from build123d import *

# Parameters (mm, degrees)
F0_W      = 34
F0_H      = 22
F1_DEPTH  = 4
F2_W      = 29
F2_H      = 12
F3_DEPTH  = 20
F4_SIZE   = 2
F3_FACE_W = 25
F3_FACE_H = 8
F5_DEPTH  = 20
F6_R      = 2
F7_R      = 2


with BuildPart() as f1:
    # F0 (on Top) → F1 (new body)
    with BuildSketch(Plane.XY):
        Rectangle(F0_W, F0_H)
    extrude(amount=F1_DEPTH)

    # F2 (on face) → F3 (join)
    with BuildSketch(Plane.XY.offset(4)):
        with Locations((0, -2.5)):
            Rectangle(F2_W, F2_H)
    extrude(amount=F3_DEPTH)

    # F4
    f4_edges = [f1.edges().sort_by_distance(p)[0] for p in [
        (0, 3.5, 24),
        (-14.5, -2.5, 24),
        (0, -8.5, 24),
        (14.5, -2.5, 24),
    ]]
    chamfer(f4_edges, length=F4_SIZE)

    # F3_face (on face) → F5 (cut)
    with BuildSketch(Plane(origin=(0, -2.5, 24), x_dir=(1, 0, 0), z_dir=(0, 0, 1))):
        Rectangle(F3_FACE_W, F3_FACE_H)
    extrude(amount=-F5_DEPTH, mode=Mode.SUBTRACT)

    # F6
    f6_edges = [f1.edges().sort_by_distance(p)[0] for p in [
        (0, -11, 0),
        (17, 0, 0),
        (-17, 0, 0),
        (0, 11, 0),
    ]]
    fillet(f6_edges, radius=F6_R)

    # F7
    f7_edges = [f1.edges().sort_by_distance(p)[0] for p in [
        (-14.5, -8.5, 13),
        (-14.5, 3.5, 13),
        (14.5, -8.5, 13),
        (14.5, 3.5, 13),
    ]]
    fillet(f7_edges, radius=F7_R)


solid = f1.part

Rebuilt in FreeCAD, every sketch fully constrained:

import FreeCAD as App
import Part
import Sketcher
from FreeCAD import Vector


def edges_at(feature, points):
    """Names of the edges that pass closest to the given points."""
    edges = feature.Shape.Edges
    near = lambda p: min(range(len(edges)), key=lambda i: edges[i].distToShape(Part.Vertex(*p))[0])
    return sorted({f"Edge{near(p) + 1}" for p in points})

doc = App.newDocument("Part")
body = doc.addObject("PartDesign::Body", "Body")

sketch1 = body.newObject("Sketcher::SketchObject", "Sketch")
sketch1.AttachmentSupport = (doc.getObject("XY_Plane"), [""])
sketch1.MapMode = "FlatFace"
sketch1.addGeometry(Part.LineSegment(Vector(-17, 11, 0), Vector(-17, -11, 0)), False)
sketch1.addGeometry(Part.LineSegment(Vector(-17, -11, 0), Vector(17, -11, 0)), False)
sketch1.addGeometry(Part.LineSegment(Vector(17, -11, 0), Vector(17, 11, 0)), False)
sketch1.addGeometry(Part.LineSegment(Vector(17, 11, 0), Vector(-17, 11, 0)), False)
sketch1.addConstraint(Sketcher.Constraint("Coincident", 0, 2, 1, 1))
sketch1.addConstraint(Sketcher.Constraint("Coincident", 1, 2, 2, 1))
sketch1.addConstraint(Sketcher.Constraint("Coincident", 2, 2, 3, 1))
sketch1.addConstraint(Sketcher.Constraint("Coincident", 3, 2, 0, 1))
sketch1.addConstraint(Sketcher.Constraint("Vertical", 0))
sketch1.addConstraint(Sketcher.Constraint("Horizontal", 1))
sketch1.addConstraint(Sketcher.Constraint("Vertical", 2))
sketch1.addConstraint(Sketcher.Constraint("Horizontal", 3))
sketch1.addConstraint(Sketcher.Constraint("Symmetric", 0, 2, 2, 2, -1, 1))
sketch1.addConstraint(Sketcher.Constraint("DistanceX", 1, 1, 1, 2, 34.0))
sketch1.addConstraint(Sketcher.Constraint("DistanceY", 0, 2, 0, 1, 22.0))
pad1 = body.newObject("PartDesign::Pad", "Pad")
pad1.Profile = sketch1
pad1.Length = 4

sketch2 = body.newObject("Sketcher::SketchObject", "Sketch001")
sketch2.AttachmentSupport = (doc.getObject("XY_Plane"), [""])
sketch2.MapMode = "FlatFace"
sketch2.AttachmentOffset = App.Placement(Vector(0, 0, 4), App.Rotation())
sketch2.addGeometry(Part.LineSegment(Vector(-14, 4, 0), Vector(-14, -8, 0)), False)
sketch2.addGeometry(Part.LineSegment(Vector(-14, -8, 0), Vector(14, -8, 0)), False)
sketch2.addGeometry(Part.LineSegment(Vector(14, -8, 0), Vector(14, 4, 0)), False)
sketch2.addGeometry(Part.LineSegment(Vector(14, 4, 0), Vector(-14, 4, 0)), False)
sketch2.addConstraint(Sketcher.Constraint("Coincident", 0, 2, 1, 1))
sketch2.addConstraint(Sketcher.Constraint("Coincident", 1, 2, 2, 1))
sketch2.addConstraint(Sketcher.Constraint("Coincident", 2, 2, 3, 1))
sketch2.addConstraint(Sketcher.Constraint("Coincident", 3, 2, 0, 1))
sketch2.addConstraint(Sketcher.Constraint("Vertical", 0))
sketch2.addConstraint(Sketcher.Constraint("Horizontal", 1))
sketch2.addConstraint(Sketcher.Constraint("Vertical", 2))
sketch2.addConstraint(Sketcher.Constraint("Horizontal", 3))
sketch2.addConstraint(Sketcher.Constraint("DistanceX", 1, 1, 1, 2, 29.0))
sketch2.addConstraint(Sketcher.Constraint("DistanceY", 0, 2, 0, 1, 12.0))
sketch2.addConstraint(Sketcher.Constraint("DistanceX", 0, 2, -1, 1, 14.5))
sketch2.addConstraint(Sketcher.Constraint("DistanceY", 0, 2, -1, 1, 8.5))
pad2 = body.newObject("PartDesign::Pad", "Pad001")
pad2.Profile = sketch2
pad2.Length = 20
doc.recompute()

chamfer = body.newObject("PartDesign::Chamfer", "Chamfer")
chamfer.Base = (pad2, edges_at(pad2, [
    (0, 3.5, 24),
    (-14.5, -2.5, 24),
    (0, -8.5, 24),
    (14.5, -2.5, 24),
]))
chamfer.Size = 2

sketch3 = body.newObject("Sketcher::SketchObject", "Sketch002")
sketch3.AttachmentSupport = (doc.getObject("XY_Plane"), [""])
sketch3.MapMode = "FlatFace"
sketch3.AttachmentOffset = App.Placement(Vector(0, 0, 24), App.Rotation())
sketch3.addGeometry(Part.LineSegment(Vector(-12, 2, 0), Vector(-12, -6, 0)), False)
sketch3.addGeometry(Part.LineSegment(Vector(-12, -6, 0), Vector(12, -6, 0)), False)
sketch3.addGeometry(Part.LineSegment(Vector(12, -6, 0), Vector(12, 2, 0)), False)
sketch3.addGeometry(Part.LineSegment(Vector(12, 2, 0), Vector(-12, 2, 0)), False)
sketch3.addConstraint(Sketcher.Constraint("Coincident", 0, 2, 1, 1))
sketch3.addConstraint(Sketcher.Constraint("Coincident", 1, 2, 2, 1))
sketch3.addConstraint(Sketcher.Constraint("Coincident", 2, 2, 3, 1))
sketch3.addConstraint(Sketcher.Constraint("Coincident", 3, 2, 0, 1))
sketch3.addConstraint(Sketcher.Constraint("Vertical", 0))
sketch3.addConstraint(Sketcher.Constraint("Horizontal", 1))
sketch3.addConstraint(Sketcher.Constraint("Vertical", 2))
sketch3.addConstraint(Sketcher.Constraint("Horizontal", 3))
sketch3.addConstraint(Sketcher.Constraint("DistanceX", 1, 1, 1, 2, 25.0))
sketch3.addConstraint(Sketcher.Constraint("DistanceY", 0, 2, 0, 1, 8.0))
sketch3.addConstraint(Sketcher.Constraint("DistanceX", 0, 2, -1, 1, 12.5))
sketch3.addConstraint(Sketcher.Constraint("DistanceY", 0, 2, -1, 1, 6.5))
pocket1 = body.newObject("PartDesign::Pocket", "Pocket")
pocket1.Profile = sketch3
pocket1.Length = 20
doc.recompute()

fillet = body.newObject("PartDesign::Fillet", "Fillet")
fillet.Base = (pocket1, edges_at(pocket1, [
    (0, -11, 0),
    (17, 0, 0),
    (-17, 0, 0),
    (0, 11, 0),
]))
fillet.Radius = 2
doc.recompute()

fillet2 = body.newObject("PartDesign::Fillet", "Fillet001")
fillet2.Base = (fillet, edges_at(fillet, [
    (-14.5, -8.5, 13),
    (-14.5, 3.5, 13),
    (14.5, -8.5, 13),
    (14.5, 3.5, 13),
]))
fillet2.Radius = 2

doc.recompute()
